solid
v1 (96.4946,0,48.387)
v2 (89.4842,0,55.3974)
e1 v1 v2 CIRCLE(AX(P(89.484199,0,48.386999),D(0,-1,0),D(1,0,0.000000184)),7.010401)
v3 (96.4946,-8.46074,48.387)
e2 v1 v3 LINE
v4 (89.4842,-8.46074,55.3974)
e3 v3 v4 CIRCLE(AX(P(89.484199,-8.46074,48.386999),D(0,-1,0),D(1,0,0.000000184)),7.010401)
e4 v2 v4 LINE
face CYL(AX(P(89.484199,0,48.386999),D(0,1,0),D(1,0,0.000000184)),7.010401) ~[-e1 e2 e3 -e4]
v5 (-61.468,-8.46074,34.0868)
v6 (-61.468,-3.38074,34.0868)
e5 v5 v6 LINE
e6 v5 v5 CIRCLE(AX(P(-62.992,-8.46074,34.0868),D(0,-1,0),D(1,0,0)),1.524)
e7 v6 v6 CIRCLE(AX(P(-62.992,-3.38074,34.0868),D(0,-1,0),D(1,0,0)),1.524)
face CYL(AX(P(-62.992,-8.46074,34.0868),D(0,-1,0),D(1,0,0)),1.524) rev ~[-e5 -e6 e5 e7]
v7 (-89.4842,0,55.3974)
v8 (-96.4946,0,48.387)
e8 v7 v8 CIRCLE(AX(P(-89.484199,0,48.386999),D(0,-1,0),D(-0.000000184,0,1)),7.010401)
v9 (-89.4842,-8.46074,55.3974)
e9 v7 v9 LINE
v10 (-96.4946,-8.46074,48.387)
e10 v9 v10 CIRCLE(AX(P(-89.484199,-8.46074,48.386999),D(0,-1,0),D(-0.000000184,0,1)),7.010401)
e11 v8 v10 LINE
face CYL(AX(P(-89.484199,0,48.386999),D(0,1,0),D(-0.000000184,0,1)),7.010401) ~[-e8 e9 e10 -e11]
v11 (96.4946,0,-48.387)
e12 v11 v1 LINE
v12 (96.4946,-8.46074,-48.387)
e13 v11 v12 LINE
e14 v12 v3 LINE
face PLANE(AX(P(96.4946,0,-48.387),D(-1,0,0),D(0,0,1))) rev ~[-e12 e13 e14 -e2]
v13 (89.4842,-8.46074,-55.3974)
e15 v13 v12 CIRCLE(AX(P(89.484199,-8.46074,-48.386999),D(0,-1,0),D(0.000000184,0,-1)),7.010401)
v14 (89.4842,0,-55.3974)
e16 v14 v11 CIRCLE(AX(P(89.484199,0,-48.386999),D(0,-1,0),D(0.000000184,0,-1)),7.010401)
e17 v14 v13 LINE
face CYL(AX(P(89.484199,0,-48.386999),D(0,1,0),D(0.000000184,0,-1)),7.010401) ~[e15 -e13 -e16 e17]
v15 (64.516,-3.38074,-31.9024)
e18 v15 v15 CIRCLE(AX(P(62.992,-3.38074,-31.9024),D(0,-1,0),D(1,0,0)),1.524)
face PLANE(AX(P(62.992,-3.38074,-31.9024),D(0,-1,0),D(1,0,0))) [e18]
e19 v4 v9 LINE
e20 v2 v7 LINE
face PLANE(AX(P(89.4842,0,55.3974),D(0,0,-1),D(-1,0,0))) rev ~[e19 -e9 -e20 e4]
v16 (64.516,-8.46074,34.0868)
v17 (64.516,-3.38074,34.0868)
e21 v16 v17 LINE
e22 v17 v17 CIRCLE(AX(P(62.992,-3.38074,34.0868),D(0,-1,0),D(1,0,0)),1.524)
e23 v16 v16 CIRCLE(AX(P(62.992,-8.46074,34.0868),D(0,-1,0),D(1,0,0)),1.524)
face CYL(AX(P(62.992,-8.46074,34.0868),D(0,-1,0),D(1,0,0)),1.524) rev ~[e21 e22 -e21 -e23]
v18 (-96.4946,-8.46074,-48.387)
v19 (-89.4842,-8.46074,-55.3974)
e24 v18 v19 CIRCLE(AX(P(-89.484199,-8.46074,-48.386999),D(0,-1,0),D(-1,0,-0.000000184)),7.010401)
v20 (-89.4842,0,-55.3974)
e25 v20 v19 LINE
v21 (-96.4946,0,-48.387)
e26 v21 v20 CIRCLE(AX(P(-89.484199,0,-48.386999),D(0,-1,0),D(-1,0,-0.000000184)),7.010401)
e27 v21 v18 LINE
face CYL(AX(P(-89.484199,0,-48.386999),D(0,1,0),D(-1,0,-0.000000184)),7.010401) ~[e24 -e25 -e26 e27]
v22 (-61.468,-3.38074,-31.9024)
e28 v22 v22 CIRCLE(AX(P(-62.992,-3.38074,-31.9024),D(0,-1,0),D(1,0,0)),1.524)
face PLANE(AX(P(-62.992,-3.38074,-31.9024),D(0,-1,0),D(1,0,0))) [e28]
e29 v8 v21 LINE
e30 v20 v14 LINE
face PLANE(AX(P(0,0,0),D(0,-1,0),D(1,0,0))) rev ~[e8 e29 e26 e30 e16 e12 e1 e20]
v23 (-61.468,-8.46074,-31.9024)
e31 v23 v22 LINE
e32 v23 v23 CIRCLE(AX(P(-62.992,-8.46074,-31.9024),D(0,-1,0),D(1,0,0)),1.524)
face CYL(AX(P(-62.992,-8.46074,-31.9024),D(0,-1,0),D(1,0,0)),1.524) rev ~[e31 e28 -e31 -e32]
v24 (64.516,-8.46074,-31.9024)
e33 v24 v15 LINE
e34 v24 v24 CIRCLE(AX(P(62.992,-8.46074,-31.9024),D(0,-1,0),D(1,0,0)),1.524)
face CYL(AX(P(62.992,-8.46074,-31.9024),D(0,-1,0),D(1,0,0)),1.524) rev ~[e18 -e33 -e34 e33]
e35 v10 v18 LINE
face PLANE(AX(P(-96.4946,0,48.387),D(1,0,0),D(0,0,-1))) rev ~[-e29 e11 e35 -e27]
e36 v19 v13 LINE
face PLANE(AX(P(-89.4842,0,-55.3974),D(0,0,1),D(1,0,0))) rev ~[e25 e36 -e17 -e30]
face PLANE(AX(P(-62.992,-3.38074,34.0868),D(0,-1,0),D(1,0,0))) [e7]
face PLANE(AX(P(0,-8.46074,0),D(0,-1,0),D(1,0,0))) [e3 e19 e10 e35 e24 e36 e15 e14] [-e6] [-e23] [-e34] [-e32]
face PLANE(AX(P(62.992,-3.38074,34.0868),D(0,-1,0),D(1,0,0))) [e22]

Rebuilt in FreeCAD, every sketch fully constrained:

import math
import FreeCAD as App
import Part
import Sketcher
from FreeCAD import Vector
Q = App.Units.Quantity

doc = App.newDocument("Part")
body = doc.addObject("PartDesign::Body", "Body")

# Sketch on XZ plane
sketch1 = body.newObject("Sketcher::SketchObject", "Sketch")
sketch1.AttachmentSupport = (doc.getObject("XZ_Plane"), [""])
sketch1.MapMode = "FlatFace"
sketch1.addGeometry([
    Part.ArcOfCircle(Part.Circle(Vector(89, 48, 0), Vector(0, 0, 1), 7), math.radians(0), math.radians(90)),  # 0
    Part.LineSegment(Vector(89, 55, 0), Vector(-89, 55, 0)),  # 1
    Part.ArcOfCircle(Part.Circle(Vector(-89, 48, 0), Vector(0, 0, 1), 7), math.radians(90), math.radians(180)),  # 2
    Part.LineSegment(Vector(-96, 48, 0), Vector(-96, -48, 0)),  # 3
    Part.ArcOfCircle(Part.Circle(Vector(-89, -48, 0), Vector(0, 0, 1), 7), math.radians(-180), math.radians(-90)),  # 4
    Part.LineSegment(Vector(-89, -55, 0), Vector(89, -55, 0)),  # 5
    Part.ArcOfCircle(Part.Circle(Vector(89, -48, 0), Vector(0, 0, 1), 7), math.radians(-90), math.radians(0)),  # 6
    Part.LineSegment(Vector(96, -48, 0), Vector(96, 48, 0)),  # 7
], False)
sketch1.addConstraint([
    Sketcher.Constraint("Tangent", 0, 2, 1, 1),
    Sketcher.Constraint("Tangent", 1, 2, 2, 1),
    Sketcher.Constraint("Tangent", 2, 2, 3, 1),
    Sketcher.Constraint("Tangent", 3, 2, 4, 1),
    Sketcher.Constraint("Tangent", 4, 2, 5, 1),
    Sketcher.Constraint("Tangent", 5, 2, 6, 1),
    Sketcher.Constraint("Tangent", 6, 2, 7, 1),
    Sketcher.Constraint("Tangent", 7, 2, 0, 1),
    Sketcher.Constraint("Horizontal", 1),
    Sketcher.Constraint("Vertical", 3),
    Sketcher.Constraint("Horizontal", 5),
    Sketcher.Constraint("Vertical", 7),
    Sketcher.Constraint("Equal", 0, 2),
    Sketcher.Constraint("Equal", 2, 4),
    Sketcher.Constraint("Equal", 4, 6),
    Sketcher.Constraint("Symmetric", 0, 3, 4, 3, -1, 1),
    Sketcher.Constraint("Radius", 0, Q("0.2760001 in")),
    Sketcher.Constraint("DistanceY", 3, 2, 3, 1, Q("3.81 in")),
    Sketcher.Constraint("DistanceX", 1, 2, 1, 1, Q("7.046 in")),
])
pad1 = body.newObject("PartDesign::Pad", "Pad")
pad1.Profile = sketch1
pad1.Length = Q("0.3331 in")

# Sketch on XZ plane
sketch2 = body.newObject("Sketcher::SketchObject", "Sketch001")
sketch2.AttachmentSupport = (doc.getObject("XZ_Plane"), [""])
sketch2.MapMode = "FlatFace"
sketch2.AttachmentOffset = App.Placement(Vector(0, 0, 0.3331 * 25.4), App.Rotation())
sketch2.addGeometry([
    Part.Circle(Vector(-63, 34.1, 0), Vector(0, 0, 1), 1.5),
    Part.Circle(Vector(63, 34.1, 0), Vector(0, 0, 1), 1.5),
    Part.Circle(Vector(63, -31.9, 0), Vector(0, 0, 1), 1.5),
    Part.Circle(Vector(-63, -31.9, 0), Vector(0, 0, 1), 1.5),
], False)
sketch2.addConstraint([
    Sketcher.Constraint("Equal", 0, 1),
    Sketcher.Constraint("Equal", 1, 2),
    Sketcher.Constraint("Equal", 2, 3),
    Sketcher.Constraint("Symmetric", 0, 3, 1, 3, -2),
    Sketcher.Constraint("Symmetric", 2, 3, 3, 3, -2),
    Sketcher.Constraint("Vertical", 1, 3, 2, 3),
    Sketcher.Constraint("Diameter", 0, Q("0.12 in")),
    Sketcher.Constraint("DistanceX", 0, 3, -1, 1, Q("2.48 in")),
    Sketcher.Constraint("DistanceY", -1, 1, 0, 3, Q("1.342 in")),
    Sketcher.Constraint("DistanceY", 2, 3, -1, 1, Q("1.256 in")),
])
pocket1 = body.newObject("PartDesign::Pocket", "Pocket")
pocket1.Profile = sketch2
pocket1.Length = Q("0.2 in")

doc.recompute()
